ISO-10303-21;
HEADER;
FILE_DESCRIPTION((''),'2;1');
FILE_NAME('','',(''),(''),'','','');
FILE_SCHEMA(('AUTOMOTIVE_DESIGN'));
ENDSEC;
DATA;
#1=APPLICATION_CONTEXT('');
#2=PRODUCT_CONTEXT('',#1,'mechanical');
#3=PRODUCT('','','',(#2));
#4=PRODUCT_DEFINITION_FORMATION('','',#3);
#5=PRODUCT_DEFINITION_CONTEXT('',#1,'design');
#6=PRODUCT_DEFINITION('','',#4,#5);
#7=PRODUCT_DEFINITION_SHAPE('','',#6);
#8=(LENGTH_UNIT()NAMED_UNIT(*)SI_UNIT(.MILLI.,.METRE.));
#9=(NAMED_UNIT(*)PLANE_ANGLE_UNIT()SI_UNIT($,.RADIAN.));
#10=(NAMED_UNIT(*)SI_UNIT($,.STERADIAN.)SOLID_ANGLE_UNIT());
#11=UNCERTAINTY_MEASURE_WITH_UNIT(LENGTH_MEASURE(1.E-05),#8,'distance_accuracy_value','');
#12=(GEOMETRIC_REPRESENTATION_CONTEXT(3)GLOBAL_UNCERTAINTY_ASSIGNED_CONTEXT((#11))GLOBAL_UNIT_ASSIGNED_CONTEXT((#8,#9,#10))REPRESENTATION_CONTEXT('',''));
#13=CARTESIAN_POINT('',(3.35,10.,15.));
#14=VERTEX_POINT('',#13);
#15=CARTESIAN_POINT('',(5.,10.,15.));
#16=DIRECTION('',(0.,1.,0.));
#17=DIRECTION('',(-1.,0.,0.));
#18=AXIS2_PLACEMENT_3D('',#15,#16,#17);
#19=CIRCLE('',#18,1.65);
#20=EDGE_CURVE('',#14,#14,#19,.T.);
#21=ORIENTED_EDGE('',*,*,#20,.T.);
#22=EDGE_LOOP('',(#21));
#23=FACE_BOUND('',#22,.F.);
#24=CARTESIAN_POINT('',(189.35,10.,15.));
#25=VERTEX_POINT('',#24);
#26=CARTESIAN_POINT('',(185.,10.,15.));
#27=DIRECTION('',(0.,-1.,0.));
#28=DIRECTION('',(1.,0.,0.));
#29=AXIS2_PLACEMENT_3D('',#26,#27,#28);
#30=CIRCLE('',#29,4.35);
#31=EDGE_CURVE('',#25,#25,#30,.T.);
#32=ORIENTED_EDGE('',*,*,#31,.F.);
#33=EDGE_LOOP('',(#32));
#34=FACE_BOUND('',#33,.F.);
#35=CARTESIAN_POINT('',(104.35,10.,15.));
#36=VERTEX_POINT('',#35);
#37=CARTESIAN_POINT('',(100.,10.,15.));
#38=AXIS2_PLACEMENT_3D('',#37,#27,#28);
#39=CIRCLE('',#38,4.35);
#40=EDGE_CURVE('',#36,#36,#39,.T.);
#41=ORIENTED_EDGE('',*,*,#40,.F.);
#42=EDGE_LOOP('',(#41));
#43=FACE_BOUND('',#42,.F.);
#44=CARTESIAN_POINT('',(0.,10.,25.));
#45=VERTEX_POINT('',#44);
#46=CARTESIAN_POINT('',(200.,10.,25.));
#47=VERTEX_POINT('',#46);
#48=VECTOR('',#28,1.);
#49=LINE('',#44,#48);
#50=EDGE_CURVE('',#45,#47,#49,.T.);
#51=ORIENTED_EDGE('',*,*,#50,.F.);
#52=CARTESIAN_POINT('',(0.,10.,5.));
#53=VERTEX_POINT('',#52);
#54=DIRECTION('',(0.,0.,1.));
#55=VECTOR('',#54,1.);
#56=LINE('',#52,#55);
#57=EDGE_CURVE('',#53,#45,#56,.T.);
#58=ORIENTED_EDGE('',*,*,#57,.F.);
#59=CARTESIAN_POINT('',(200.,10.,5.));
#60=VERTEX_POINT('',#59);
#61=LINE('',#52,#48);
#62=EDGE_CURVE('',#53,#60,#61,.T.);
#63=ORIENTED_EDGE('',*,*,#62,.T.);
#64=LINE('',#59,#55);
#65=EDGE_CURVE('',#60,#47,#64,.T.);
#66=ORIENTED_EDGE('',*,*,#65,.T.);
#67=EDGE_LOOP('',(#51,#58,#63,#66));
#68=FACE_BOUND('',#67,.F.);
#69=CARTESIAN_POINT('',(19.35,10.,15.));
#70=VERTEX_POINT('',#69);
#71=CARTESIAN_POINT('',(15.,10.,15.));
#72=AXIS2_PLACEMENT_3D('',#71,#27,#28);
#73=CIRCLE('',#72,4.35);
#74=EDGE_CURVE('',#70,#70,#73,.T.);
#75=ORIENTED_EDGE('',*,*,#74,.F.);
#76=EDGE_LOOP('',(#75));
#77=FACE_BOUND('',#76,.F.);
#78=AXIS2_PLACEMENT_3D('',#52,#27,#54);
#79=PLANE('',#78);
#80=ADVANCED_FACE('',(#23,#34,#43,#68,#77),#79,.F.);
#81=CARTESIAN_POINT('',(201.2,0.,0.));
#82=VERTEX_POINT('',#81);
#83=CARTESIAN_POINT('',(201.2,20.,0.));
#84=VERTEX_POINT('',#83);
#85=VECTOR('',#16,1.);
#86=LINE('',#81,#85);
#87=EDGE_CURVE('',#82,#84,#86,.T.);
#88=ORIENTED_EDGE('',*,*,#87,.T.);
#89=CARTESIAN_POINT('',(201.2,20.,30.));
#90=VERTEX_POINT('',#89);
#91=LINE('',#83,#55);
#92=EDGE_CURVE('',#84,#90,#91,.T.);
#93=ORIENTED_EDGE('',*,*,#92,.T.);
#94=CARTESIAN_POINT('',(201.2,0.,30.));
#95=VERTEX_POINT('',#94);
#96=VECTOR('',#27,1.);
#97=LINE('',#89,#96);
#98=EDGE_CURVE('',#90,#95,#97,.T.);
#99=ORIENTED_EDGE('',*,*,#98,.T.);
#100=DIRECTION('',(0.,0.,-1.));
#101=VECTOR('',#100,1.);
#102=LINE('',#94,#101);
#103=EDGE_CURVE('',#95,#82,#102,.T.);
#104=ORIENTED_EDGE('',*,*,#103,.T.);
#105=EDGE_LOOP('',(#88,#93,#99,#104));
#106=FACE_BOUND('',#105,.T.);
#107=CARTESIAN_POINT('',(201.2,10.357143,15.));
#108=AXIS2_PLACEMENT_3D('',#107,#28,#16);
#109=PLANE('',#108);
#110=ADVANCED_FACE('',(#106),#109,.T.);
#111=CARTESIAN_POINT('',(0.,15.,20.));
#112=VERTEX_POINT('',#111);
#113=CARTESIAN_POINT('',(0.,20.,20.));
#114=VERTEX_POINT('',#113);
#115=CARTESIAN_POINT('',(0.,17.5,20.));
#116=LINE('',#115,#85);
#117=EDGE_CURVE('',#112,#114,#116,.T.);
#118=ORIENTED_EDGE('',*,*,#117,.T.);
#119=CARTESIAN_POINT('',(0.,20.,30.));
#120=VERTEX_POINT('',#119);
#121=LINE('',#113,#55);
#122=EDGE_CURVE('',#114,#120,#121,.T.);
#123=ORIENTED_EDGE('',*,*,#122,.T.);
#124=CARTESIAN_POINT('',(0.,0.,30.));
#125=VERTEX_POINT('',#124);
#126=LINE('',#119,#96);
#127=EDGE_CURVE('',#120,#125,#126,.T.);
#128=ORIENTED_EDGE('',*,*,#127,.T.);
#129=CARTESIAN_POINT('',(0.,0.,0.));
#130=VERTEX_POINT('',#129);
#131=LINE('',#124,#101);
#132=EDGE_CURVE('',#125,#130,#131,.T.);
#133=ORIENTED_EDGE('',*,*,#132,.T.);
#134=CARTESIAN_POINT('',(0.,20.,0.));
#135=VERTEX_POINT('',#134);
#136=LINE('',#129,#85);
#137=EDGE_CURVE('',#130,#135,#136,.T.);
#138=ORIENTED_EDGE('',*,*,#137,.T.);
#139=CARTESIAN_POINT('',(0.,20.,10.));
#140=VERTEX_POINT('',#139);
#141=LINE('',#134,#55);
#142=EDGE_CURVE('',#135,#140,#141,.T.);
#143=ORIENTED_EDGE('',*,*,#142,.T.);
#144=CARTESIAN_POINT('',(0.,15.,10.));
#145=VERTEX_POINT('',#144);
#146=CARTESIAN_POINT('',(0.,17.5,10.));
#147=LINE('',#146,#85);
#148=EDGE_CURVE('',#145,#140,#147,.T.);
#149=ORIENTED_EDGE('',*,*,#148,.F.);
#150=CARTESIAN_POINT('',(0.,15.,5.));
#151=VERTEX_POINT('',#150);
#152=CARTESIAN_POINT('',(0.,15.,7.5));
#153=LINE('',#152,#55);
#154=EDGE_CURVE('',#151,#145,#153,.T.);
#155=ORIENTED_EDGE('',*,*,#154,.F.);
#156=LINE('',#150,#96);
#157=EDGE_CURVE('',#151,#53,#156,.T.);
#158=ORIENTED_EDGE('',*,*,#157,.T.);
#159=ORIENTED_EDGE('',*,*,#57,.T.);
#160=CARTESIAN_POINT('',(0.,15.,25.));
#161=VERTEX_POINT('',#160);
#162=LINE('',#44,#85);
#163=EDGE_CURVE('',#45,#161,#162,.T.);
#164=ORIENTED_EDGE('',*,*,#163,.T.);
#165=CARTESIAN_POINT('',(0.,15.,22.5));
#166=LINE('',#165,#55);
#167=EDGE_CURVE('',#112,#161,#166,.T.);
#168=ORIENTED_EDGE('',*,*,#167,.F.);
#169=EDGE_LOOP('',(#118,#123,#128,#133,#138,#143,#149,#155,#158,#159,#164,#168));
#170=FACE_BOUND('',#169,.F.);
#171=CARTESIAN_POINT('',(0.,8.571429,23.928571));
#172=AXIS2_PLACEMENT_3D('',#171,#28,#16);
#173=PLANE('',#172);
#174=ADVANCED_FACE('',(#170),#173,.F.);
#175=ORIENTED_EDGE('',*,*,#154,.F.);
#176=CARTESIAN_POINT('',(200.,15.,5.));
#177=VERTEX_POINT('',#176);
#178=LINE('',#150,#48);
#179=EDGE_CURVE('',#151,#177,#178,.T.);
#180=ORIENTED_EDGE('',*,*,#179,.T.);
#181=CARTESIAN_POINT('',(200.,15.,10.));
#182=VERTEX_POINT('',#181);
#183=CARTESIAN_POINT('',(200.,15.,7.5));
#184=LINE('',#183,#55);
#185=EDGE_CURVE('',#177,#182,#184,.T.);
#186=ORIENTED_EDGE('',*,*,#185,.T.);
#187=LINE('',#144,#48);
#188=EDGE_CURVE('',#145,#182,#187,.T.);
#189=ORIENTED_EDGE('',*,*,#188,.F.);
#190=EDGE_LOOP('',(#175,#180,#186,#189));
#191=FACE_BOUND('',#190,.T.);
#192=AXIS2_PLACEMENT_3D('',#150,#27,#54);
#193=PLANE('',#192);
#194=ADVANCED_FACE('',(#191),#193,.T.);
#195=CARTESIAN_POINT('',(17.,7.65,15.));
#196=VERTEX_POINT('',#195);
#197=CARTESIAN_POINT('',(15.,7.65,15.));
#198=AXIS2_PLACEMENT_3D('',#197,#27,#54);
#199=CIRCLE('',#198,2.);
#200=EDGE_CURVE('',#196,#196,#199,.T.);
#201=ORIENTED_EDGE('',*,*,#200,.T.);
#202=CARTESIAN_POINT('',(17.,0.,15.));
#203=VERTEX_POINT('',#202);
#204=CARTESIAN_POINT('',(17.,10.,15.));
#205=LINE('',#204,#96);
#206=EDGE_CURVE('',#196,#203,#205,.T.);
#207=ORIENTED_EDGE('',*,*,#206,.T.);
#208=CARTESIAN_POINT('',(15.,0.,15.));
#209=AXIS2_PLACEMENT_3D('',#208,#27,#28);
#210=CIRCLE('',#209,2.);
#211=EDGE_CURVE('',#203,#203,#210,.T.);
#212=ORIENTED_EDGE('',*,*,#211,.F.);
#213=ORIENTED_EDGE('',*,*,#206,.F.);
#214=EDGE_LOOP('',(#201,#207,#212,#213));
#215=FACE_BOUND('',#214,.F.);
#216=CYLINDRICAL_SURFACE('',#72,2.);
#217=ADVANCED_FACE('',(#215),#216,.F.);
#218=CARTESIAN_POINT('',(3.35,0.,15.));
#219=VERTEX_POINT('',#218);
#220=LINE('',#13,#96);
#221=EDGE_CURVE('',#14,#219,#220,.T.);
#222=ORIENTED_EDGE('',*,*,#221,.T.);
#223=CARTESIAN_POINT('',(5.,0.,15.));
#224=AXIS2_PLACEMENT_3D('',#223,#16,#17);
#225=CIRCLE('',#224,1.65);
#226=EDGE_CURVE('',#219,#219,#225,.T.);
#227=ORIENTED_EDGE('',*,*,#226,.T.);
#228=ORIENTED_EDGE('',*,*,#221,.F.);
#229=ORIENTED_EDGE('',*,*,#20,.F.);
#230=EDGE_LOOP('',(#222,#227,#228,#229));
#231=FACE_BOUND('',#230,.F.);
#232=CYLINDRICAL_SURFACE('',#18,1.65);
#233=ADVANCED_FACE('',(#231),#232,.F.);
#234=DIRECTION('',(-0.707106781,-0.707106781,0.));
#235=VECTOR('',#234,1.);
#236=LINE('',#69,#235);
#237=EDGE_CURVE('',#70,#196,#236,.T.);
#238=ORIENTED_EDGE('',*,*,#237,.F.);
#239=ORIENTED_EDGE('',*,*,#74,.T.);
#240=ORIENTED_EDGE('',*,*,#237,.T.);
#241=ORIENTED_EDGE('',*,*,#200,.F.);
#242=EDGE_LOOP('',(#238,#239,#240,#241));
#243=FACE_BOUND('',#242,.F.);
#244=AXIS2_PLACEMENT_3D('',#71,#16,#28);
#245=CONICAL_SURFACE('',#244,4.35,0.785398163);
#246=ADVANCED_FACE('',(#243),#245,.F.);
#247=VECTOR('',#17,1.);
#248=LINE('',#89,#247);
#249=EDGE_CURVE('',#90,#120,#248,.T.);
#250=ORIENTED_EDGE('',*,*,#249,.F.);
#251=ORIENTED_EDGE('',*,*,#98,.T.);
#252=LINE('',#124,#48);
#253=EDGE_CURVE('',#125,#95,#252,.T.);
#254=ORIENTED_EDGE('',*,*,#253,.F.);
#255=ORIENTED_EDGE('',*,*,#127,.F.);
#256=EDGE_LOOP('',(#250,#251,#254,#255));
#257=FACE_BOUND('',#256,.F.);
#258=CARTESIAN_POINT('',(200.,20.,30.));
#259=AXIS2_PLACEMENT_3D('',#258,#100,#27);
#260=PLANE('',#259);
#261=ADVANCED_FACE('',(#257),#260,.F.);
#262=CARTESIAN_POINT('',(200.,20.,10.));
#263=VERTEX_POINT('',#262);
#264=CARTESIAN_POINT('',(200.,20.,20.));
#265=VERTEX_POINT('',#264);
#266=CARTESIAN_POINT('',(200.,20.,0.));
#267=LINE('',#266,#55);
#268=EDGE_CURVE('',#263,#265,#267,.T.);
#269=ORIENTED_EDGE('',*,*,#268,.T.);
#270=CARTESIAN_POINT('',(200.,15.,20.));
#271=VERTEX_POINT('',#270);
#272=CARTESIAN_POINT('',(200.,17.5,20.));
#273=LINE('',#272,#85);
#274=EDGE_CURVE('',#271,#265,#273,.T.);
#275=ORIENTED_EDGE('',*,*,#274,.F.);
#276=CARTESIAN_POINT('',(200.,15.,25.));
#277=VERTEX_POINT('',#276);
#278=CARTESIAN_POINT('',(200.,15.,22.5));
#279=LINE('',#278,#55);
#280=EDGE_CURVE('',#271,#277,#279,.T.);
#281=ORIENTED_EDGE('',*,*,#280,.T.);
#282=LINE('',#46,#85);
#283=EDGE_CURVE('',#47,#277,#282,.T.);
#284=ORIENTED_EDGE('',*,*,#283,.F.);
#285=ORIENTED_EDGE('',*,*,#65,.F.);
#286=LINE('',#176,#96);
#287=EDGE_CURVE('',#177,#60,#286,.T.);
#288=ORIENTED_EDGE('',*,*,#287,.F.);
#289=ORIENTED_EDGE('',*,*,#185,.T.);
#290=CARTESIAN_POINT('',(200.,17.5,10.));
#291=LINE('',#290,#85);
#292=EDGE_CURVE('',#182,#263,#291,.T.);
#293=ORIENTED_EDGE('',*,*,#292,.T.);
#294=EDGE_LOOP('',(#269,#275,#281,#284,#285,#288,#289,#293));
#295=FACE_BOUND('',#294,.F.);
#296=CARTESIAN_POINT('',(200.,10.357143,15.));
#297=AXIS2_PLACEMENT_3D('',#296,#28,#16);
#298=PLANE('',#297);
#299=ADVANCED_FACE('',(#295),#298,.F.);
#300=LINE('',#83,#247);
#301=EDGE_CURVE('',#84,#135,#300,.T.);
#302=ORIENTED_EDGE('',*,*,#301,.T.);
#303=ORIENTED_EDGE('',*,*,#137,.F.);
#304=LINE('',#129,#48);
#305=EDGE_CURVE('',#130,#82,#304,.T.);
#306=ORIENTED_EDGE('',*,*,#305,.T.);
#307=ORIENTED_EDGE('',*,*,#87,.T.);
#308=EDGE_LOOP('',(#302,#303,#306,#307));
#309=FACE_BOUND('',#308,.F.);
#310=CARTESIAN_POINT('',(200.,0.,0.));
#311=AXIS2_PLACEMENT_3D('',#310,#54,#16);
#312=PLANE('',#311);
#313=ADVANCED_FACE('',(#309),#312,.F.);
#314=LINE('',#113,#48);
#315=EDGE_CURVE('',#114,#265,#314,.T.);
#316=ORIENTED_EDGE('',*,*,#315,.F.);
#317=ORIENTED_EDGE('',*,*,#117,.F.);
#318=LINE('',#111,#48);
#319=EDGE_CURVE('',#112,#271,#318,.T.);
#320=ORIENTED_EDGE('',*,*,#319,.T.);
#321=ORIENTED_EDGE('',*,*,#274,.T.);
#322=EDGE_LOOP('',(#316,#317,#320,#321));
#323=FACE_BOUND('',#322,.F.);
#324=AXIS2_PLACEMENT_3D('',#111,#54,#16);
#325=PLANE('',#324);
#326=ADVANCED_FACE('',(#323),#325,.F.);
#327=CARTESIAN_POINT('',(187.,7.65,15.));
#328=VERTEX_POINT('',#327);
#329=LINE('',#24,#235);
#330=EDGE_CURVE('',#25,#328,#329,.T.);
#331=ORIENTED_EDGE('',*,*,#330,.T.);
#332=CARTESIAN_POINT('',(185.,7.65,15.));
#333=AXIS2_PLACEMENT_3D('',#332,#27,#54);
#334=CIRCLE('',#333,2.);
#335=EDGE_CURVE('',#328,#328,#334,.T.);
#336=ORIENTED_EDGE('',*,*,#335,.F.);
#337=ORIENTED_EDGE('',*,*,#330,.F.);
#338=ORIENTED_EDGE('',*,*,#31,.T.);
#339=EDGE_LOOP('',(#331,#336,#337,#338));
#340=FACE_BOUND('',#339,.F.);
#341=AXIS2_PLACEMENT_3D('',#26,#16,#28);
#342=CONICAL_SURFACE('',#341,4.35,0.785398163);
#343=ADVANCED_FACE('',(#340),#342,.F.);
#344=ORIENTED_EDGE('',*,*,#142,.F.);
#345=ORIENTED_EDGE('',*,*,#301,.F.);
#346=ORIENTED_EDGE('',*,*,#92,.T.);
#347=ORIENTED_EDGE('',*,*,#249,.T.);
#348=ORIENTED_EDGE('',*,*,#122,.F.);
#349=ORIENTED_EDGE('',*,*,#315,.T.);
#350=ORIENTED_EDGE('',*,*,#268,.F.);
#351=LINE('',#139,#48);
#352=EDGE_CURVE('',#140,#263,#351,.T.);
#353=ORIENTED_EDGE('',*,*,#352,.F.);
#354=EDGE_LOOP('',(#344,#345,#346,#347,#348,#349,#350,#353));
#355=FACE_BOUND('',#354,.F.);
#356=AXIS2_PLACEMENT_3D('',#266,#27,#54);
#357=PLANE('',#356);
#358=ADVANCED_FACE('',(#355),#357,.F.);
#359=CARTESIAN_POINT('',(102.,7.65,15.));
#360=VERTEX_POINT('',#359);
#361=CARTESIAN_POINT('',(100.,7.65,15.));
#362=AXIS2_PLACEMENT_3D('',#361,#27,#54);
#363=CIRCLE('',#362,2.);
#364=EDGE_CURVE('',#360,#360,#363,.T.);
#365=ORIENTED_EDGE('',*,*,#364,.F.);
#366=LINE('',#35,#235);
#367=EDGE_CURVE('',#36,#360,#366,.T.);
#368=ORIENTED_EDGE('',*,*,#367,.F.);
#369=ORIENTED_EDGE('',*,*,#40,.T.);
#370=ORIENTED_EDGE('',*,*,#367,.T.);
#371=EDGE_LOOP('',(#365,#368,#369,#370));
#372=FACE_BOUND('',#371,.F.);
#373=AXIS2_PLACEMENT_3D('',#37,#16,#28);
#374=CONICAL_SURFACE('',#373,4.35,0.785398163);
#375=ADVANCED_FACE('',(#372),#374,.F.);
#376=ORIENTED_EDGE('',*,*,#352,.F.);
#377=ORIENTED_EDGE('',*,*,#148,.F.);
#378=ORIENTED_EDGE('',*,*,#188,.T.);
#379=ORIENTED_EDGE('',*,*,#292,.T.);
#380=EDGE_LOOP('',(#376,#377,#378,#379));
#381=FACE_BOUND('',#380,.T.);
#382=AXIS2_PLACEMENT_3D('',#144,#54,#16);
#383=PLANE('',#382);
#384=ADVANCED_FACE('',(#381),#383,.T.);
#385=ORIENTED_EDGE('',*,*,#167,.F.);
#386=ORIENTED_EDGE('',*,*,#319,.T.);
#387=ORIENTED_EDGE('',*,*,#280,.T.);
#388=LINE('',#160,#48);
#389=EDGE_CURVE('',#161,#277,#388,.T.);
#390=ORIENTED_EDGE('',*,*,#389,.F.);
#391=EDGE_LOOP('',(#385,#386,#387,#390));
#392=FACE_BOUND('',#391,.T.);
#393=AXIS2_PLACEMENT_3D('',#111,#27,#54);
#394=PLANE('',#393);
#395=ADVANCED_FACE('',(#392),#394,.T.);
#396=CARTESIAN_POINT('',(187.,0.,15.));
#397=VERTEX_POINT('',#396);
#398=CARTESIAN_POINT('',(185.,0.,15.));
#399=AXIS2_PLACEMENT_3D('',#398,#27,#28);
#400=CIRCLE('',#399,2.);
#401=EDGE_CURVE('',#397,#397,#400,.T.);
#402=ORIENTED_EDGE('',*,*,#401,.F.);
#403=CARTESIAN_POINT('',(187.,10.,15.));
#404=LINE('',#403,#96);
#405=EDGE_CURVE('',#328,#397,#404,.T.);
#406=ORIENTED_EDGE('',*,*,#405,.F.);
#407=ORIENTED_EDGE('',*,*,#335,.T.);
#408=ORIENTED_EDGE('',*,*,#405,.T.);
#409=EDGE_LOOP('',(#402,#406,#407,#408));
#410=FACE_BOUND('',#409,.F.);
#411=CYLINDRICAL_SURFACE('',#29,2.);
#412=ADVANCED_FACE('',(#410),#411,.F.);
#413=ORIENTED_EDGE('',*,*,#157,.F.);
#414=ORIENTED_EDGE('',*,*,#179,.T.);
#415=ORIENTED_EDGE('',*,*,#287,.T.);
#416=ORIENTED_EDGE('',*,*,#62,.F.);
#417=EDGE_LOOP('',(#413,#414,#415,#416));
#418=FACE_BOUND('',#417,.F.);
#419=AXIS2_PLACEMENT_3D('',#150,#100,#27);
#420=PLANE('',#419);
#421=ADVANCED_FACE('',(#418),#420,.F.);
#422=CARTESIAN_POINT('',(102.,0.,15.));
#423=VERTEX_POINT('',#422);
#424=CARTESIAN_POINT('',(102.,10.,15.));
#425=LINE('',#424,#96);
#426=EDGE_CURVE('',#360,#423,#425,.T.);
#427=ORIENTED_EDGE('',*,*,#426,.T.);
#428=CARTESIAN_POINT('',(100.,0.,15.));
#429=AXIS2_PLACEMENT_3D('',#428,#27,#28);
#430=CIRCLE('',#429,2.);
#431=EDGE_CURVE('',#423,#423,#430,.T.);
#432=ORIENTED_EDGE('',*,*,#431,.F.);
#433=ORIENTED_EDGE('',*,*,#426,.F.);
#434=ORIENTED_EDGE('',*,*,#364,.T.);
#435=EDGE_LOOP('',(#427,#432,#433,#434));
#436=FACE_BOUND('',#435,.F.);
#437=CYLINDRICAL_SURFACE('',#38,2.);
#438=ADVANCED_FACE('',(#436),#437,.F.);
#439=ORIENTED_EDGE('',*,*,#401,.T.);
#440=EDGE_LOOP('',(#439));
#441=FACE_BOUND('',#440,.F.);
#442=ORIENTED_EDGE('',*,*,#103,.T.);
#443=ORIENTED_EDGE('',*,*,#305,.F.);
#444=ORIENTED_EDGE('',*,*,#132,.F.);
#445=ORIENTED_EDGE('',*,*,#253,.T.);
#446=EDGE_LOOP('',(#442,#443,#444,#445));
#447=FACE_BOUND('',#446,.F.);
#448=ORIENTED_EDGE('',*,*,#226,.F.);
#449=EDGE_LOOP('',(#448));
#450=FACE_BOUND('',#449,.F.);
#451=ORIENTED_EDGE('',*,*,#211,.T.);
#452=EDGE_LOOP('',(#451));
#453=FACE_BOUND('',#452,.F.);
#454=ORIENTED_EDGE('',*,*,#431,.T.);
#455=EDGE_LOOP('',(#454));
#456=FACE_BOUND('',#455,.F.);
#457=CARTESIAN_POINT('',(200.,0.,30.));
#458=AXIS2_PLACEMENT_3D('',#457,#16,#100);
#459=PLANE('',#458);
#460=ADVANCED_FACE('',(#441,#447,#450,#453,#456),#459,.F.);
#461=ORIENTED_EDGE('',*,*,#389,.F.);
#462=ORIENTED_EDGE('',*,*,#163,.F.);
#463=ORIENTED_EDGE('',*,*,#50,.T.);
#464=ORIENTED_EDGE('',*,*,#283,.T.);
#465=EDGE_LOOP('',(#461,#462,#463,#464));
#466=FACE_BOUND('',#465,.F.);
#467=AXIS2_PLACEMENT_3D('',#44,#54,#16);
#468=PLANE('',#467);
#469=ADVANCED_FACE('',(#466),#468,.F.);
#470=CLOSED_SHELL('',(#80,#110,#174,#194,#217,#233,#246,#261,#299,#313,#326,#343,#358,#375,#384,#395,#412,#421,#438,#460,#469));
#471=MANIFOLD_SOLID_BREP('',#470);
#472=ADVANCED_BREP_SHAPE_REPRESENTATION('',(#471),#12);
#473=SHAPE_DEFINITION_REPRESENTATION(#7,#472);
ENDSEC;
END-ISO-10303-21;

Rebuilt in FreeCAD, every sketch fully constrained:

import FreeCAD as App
import Part
import Sketcher

V = App.Vector
Q = App.Units.Quantity


def add_polygon(sketch, points):
    """Adds a closed chain of lines whose ends are joined by coincident constraints."""
    first, n = sketch.GeometryCount, len(points)
    for a, b in zip(points, points[1:] + points[:1]):
        sketch.addGeometry(Part.LineSegment(App.Vector(*a, 0), App.Vector(*b, 0)), False)
    for i in range(n):
        sketch.addConstraint(Sketcher.Constraint("Coincident", first + i, 2, first + (i + 1) % n, 1))

doc = App.newDocument("Part")
body = doc.addObject("PartDesign::Body", "Body")

# Sketch on YZ plane
sketch1 = body.newObject("Sketcher::SketchObject", "Sketch")
sketch1.AttachmentSupport = (doc.getObject("YZ_Plane"), [""])
sketch1.MapMode = "FlatFace"
add_polygon(sketch1, [(0, 30), (0, 0), (20, 0), (20, 10), (15, 10), (15, 5), (10, 5), (10, 25), (15, 25), (15, 20), (20, 20), (20, 30)])  # lines 0-11
sketch1.addConstraint([
    Sketcher.Constraint("Vertical", 0),
    Sketcher.Constraint("Horizontal", 1),
    Sketcher.Constraint("Vertical", 2),
    Sketcher.Constraint("Horizontal", 3),
    Sketcher.Constraint("Vertical", 4),
    Sketcher.Constraint("Horizontal", 5),
    Sketcher.Constraint("Vertical", 6),
    Sketcher.Constraint("Horizontal", 7),
    Sketcher.Constraint("Vertical", 8),
    Sketcher.Constraint("Horizontal", 9),
    Sketcher.Constraint("Vertical", 10),
    Sketcher.Constraint("Horizontal", 11),
    Sketcher.Constraint("Coincident", 0, 2, -1, 1),
    Sketcher.Constraint("Vertical", 4, 2, 7, 2),
    Sketcher.Constraint("Vertical", 2, 2, 9, 2),
    Sketcher.Constraint("Equal", 3, 5),
    Sketcher.Constraint("Equal", 9, 4),
    Sketcher.Constraint("Equal", 11, 6),
    Sketcher.Constraint("Equal", 4, 8),
    Sketcher.Constraint("Equal", 2, 10),
    Sketcher.Constraint("DistanceX", 1, 1, 1, 2, Q("20 mm")),
    Sketcher.Constraint("DistanceX", 3, 2, 3, 1, Q("5 mm")),
    Sketcher.Constraint("DistanceY", 0, 2, 0, 1, Q("30 mm")),
])
pad1 = body.newObject("PartDesign::Pad", "Pad")
pad1.Profile = sketch1
pad1.Length = 200

# Sketch on YZ plane
sketch2 = body.newObject("Sketcher::SketchObject", "Sketch001")
sketch2.AttachmentSupport = (doc.getObject("YZ_Plane"), [""])
sketch2.MapMode = "FlatFace"
sketch2.AttachmentOffset = App.Placement(V(0, 0, 200), App.Rotation())
add_polygon(sketch2, [(20, 30), (0, 30), (0, 0), (20, 0)])  # lines 0-3
sketch2.addConstraint([
    Sketcher.Constraint("Horizontal", 0),
    Sketcher.Constraint("Vertical", 1),
    Sketcher.Constraint("Horizontal", 2),
    Sketcher.Constraint("Vertical", 3),
    Sketcher.Constraint("Coincident", 1, 2, -1, 1),
    Sketcher.Constraint("DistanceX", 0, 2, 0, 1, Q("20 mm")),
    Sketcher.Constraint("DistanceY", 1, 2, 1, 1, Q("30 mm")),
])
pad2 = body.newObject("PartDesign::Pad", "Pad001")
pad2.Profile = sketch2
pad2.Length = 1.2

# Sketch on XZ plane
sketch3 = body.newObject("Sketcher::SketchObject", "Sketch002")
sketch3.AttachmentSupport = (doc.getObject("XZ_Plane"), [""])
sketch3.MapMode = "FlatFace"
sketch3.AttachmentOffset = App.Placement(V(0, 0, -10), App.Rotation())
sketch3.addGeometry([
    Part.Circle(V(15, 15, 0), V(0, 0, 1), 2),
    Part.Circle(V(185, 15, 0), V(0, 0, 1), 2),
    Part.Circle(V(100, 15, 0), V(0, 0, 1), 2),
], False)
sketch3.addConstraint([
    Sketcher.Constraint("Equal", 0, 1),
    Sketcher.Constraint("Equal", 1, 2),
    Sketcher.Constraint("Horizontal", 0, 3, 1, 3),
    Sketcher.Constraint("Horizontal", 1, 3, 2, 3),
    Sketcher.Constraint("Diameter", 0, Q("4 mm")),
    Sketcher.Constraint("DistanceX", -1, 1, 0, 3, Q("15 mm")),
    Sketcher.Constraint("DistanceY", -1, 1, 0, 3, Q("15 mm")),
    Sketcher.Constraint("DistanceX", -1, 1, 1, 3, Q("185 mm")),
    Sketcher.Constraint("DistanceX", -1, 1, 2, 3, Q("100 mm")),
])
doc.recompute()
hole = body.newObject("PartDesign::Hole", "Hole")
hole.Profile = sketch3
hole.ThreadType = "None"
hole.Diameter = 4
hole.DepthType = "ThroughAll"
hole.HoleCutType = "Countersink"
hole.HoleCutDiameter = 8.7
hole.HoleCutCountersinkAngle = 90
hole.Reversed = True

# Sketch on XZ plane
sketch4 = body.newObject("Sketcher::SketchObject", "Sketch003")
sketch4.AttachmentSupport = (doc.getObject("XZ_Plane"), [""])
sketch4.MapMode = "FlatFace"
sketch4.AttachmentOffset = App.Placement(V(0, 0, -10), App.Rotation())
sketch4.addGeometry(Part.Circle(V(5, 15, 0), V(0, 0, 1), 1.6), False)
sketch4.addConstraint([
    Sketcher.Constraint("Diameter", 0, Q("3.3 mm")),
    Sketcher.Constraint("DistanceX", -1, 1, 0, 3, Q("5 mm")),
    Sketcher.Constraint("DistanceY", -1, 1, 0, 3, Q("15 mm")),
])
pocket1 = body.newObject("PartDesign::Pocket", "Pocket")
pocket1.Profile = sketch4
pocket1.Length = 25
pocket1.Reversed = True

doc.recompute()
